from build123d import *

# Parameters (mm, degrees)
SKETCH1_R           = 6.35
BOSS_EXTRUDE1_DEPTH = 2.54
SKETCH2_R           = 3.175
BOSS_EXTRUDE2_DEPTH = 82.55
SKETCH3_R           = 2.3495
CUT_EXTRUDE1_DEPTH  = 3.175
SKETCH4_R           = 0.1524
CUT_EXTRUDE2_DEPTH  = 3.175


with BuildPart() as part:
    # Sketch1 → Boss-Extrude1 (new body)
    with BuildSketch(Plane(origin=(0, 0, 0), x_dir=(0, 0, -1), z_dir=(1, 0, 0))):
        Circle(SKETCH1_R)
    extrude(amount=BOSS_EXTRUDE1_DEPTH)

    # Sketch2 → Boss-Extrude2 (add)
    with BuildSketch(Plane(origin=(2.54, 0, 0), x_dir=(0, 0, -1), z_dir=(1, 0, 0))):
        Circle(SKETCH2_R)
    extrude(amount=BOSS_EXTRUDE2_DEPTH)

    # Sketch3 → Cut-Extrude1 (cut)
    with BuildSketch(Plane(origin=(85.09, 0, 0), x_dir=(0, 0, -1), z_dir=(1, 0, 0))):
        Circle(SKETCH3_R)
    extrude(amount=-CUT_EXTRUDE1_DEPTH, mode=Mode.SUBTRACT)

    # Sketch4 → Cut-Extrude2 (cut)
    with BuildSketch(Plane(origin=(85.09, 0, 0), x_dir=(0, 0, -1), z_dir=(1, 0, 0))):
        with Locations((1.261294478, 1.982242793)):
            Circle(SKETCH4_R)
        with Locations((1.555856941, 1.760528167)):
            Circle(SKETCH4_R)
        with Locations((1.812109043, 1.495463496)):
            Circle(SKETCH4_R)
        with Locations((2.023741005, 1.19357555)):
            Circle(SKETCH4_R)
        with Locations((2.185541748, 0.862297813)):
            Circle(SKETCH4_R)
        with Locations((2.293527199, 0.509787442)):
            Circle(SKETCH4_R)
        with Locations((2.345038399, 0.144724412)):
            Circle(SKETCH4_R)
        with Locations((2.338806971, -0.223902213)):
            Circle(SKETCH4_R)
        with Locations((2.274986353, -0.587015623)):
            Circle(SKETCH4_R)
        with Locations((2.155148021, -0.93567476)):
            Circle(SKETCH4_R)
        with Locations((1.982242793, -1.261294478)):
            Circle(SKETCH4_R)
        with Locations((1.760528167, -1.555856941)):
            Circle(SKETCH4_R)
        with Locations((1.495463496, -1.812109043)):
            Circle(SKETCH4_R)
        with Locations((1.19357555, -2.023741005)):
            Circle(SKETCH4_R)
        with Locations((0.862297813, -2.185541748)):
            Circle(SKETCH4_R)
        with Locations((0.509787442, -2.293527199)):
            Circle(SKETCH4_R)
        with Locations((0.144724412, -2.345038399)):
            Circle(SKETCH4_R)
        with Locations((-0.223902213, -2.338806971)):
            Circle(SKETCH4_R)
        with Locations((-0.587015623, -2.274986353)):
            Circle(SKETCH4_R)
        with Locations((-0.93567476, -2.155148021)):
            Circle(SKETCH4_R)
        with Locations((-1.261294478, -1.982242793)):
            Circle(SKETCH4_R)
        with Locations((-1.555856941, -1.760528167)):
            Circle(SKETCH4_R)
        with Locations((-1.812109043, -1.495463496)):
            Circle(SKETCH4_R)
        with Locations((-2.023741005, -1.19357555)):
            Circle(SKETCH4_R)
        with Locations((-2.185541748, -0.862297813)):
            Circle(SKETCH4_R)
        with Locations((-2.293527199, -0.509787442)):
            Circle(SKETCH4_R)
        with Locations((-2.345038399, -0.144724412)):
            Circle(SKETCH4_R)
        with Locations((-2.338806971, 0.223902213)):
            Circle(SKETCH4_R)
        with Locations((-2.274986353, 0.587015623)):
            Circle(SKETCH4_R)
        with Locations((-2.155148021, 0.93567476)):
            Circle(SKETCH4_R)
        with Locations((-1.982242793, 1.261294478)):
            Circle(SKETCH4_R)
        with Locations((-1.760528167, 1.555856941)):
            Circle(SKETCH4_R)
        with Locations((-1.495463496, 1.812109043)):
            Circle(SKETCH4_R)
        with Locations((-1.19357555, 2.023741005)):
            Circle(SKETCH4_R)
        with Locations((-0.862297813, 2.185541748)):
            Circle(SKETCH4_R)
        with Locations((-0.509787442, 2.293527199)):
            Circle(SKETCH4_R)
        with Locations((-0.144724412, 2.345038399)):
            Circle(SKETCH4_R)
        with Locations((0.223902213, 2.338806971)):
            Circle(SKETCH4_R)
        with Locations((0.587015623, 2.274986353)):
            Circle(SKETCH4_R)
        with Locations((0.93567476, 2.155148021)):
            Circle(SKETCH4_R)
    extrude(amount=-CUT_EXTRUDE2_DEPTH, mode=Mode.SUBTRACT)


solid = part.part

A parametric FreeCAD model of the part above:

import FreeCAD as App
import Part
import Sketcher
Q = App.Units.Quantity

doc = App.newDocument("Part")
body = doc.addObject("PartDesign::Body", "Body")

# Sketch on YZ plane
sketch1 = doc.addObject("Sketcher::SketchObject", "Sketch")
body.addObject(sketch1)
sketch1.AttachmentSupport = (doc.YZ_Plane, [""])
sketch1.MapMode = "FlatFace"
sketch1.addGeometry(Part.Circle(App.Vector(0, 0, 0), App.Vector(0, 0, 1), 6), False)
sketch1.addConstraint([
    Sketcher.Constraint("Coincident", 0, 3, -1, 1),
    Sketcher.Constraint("Diameter", 0, Q("0.5 in")),
])
pad1 = doc.addObject("PartDesign::Pad", "Pad")
body.addObject(pad1)
pad1.Profile = sketch1
pad1.Length = Q("0.1 in")

# Sketch on YZ plane
sketch2 = doc.addObject("Sketcher::SketchObject", "Sketch001")
body.addObject(sketch2)
sketch2.AttachmentSupport = (doc.YZ_Plane, [""])
sketch2.MapMode = "FlatFace"
sketch2.AttachmentOffset = App.Placement(App.Vector(0, 0, 0.1 * 25.4), App.Rotation())
sketch2.addGeometry(Part.Circle(App.Vector(0, 0, 0), App.Vector(0, 0, 1), 3.2), False)
sketch2.addConstraint([
    Sketcher.Constraint("Coincident", 0, 3, -1, 1),
    Sketcher.Constraint("Diameter", 0, Q("0.25 in")),
])
pad2 = doc.addObject("PartDesign::Pad", "Pad001")
body.addObject(pad2)
pad2.Profile = sketch2
pad2.Length = Q("3.25 in")

# Sketch on YZ plane
sketch3 = doc.addObject("Sketcher::SketchObject", "Sketch002")
body.addObject(sketch3)
sketch3.AttachmentSupport = (doc.YZ_Plane, [""])
sketch3.MapMode = "FlatFace"
sketch3.AttachmentOffset = App.Placement(App.Vector(0, 0, 3.35 * 25.4), App.Rotation())
sketch3.addGeometry(Part.Circle(App.Vector(0, 0, 0), App.Vector(0, 0, 1), 2.3), False)
sketch3.addConstraint([
    Sketcher.Constraint("Coincident", 0, 3, -1, 1),
    Sketcher.Constraint("Diameter", 0, Q("0.185 in")),
])
pocket1 = doc.addObject("PartDesign::Pocket", "Pocket")
body.addObject(pocket1)
pocket1.Profile = sketch3
pocket1.Length = Q("0.125 in")

# Sketch on YZ plane
sketch4 = doc.addObject("Sketcher::SketchObject", "Sketch003")
body.addObject(sketch4)
sketch4.AttachmentSupport = (doc.YZ_Plane, [""])
sketch4.MapMode = "FlatFace"
sketch4.AttachmentOffset = App.Placement(App.Vector(0, 0, 3.35 * 25.4), App.Rotation())
sketch4.addGeometry([
    Part.Circle(App.Vector(1.98, -1.26, 0), App.Vector(0, 0, 1), 0.15),  # 0
    Part.Circle(App.Vector(1.76, -1.56, 0), App.Vector(0, 0, 1), 0.15),  # 1
    Part.Circle(App.Vector(1.5, -1.81, 0), App.Vector(0, 0, 1), 0.15),  # 2
    Part.Circle(App.Vector(1.19, -2.02, 0), App.Vector(0, 0, 1), 0.15),  # 3
    Part.Circle(App.Vector(0.86, -2.19, 0), App.Vector(0, 0, 1), 0.15),  # 4
    Part.Circle(App.Vector(0.51, -2.29, 0), App.Vector(0, 0, 1), 0.15),  # 5
    Part.Circle(App.Vector(0.14, -2.35, 0), App.Vector(0, 0, 1), 0.15),  # 6
    Part.Circle(App.Vector(-0.22, -2.34, 0), App.Vector(0, 0, 1), 0.15),  # 7
    Part.Circle(App.Vector(-0.59, -2.27, 0), App.Vector(0, 0, 1), 0.15),  # 8
    Part.Circle(App.Vector(-0.94, -2.16, 0), App.Vector(0, 0, 1), 0.15),  # 9
    Part.Circle(App.Vector(-1.26, -1.98, 0), App.Vector(0, 0, 1), 0.15),  # 10
    Part.Circle(App.Vector(-1.56, -1.76, 0), App.Vector(0, 0, 1), 0.15),  # 11
    Part.Circle(App.Vector(-1.81, -1.5, 0), App.Vector(0, 0, 1), 0.15),  # 12
    Part.Circle(App.Vector(-2.02, -1.19, 0), App.Vector(0, 0, 1), 0.15),  # 13
    Part.Circle(App.Vector(-2.19, -0.86, 0), App.Vector(0, 0, 1), 0.15),  # 14
    Part.Circle(App.Vector(-2.29, -0.51, 0), App.Vector(0, 0, 1), 0.15),  # 15
    Part.Circle(App.Vector(-2.35, -0.14, 0), App.Vector(0, 0, 1), 0.15),  # 16
    Part.Circle(App.Vector(-2.34, 0.22, 0), App.Vector(0, 0, 1), 0.15),  # 17
    Part.Circle(App.Vector(-2.27, 0.59, 0), App.Vector(0, 0, 1), 0.15),  # 18
    Part.Circle(App.Vector(-2.16, 0.94, 0), App.Vector(0, 0, 1), 0.15),  # 19
    Part.Circle(App.Vector(-1.98, 1.26, 0), App.Vector(0, 0, 1), 0.15),  # 20
    Part.Circle(App.Vector(-1.76, 1.56, 0), App.Vector(0, 0, 1), 0.15),  # 21
    Part.Circle(App.Vector(-1.5, 1.81, 0), App.Vector(0, 0, 1), 0.15),  # 22
    Part.Circle(App.Vector(-1.19, 2.02, 0), App.Vector(0, 0, 1), 0.15),  # 23
    Part.Circle(App.Vector(-0.86, 2.19, 0), App.Vector(0, 0, 1), 0.15),  # 24
    Part.Circle(App.Vector(-0.51, 2.29, 0), App.Vector(0, 0, 1), 0.15),  # 25
    Part.Circle(App.Vector(-0.14, 2.35, 0), App.Vector(0, 0, 1), 0.15),  # 26
    Part.Circle(App.Vector(0.22, 2.34, 0), App.Vector(0, 0, 1), 0.15),  # 27
    Part.Circle(App.Vector(0.59, 2.27, 0), App.Vector(0, 0, 1), 0.15),  # 28
    Part.Circle(App.Vector(0.94, 2.16, 0), App.Vector(0, 0, 1), 0.15),  # 29
    Part.Circle(App.Vector(1.26, 1.98, 0), App.Vector(0, 0, 1), 0.15),  # 30
    Part.Circle(App.Vector(1.56, 1.76, 0), App.Vector(0, 0, 1), 0.15),  # 31
    Part.Circle(App.Vector(1.81, 1.5, 0), App.Vector(0, 0, 1), 0.15),  # 32
    Part.Circle(App.Vector(2.02, 1.19, 0), App.Vector(0, 0, 1), 0.15),  # 33
    Part.Circle(App.Vector(2.19, 0.86, 0), App.Vector(0, 0, 1), 0.15),  # 34
    Part.Circle(App.Vector(2.29, 0.51, 0), App.Vector(0, 0, 1), 0.15),  # 35
    Part.Circle(App.Vector(2.35, 0.14, 0), App.Vector(0, 0, 1), 0.15),  # 36
    Part.Circle(App.Vector(2.34, -0.22, 0), App.Vector(0, 0, 1), 0.15),  # 37
    Part.Circle(App.Vector(2.27, -0.59, 0), App.Vector(0, 0, 1), 0.15),  # 38
    Part.Circle(App.Vector(2.16, -0.94, 0), App.Vector(0, 0, 1), 0.15),  # 39
], False)
sketch4.addConstraint([
    Sketcher.Constraint("Equal", 0, 1),
    Sketcher.Constraint("Equal", 1, 2),
    Sketcher.Constraint("Equal", 2, 3),
    Sketcher.Constraint("Equal", 3, 4),
    Sketcher.Constraint("Equal", 4, 5),
    Sketcher.Constraint("Equal", 5, 6),
    Sketcher.Constraint("Equal", 6, 7),
    Sketcher.Constraint("Equal", 7, 8),
    Sketcher.Constraint("Equal", 8, 9),
    Sketcher.Constraint("Equal", 9, 10),
    Sketcher.Constraint("Equal", 10, 11),
    Sketcher.Constraint("Equal", 11, 12),
    Sketcher.Constraint("Equal", 12, 13),
    Sketcher.Constraint("Equal", 13, 14),
    Sketcher.Constraint("Equal", 14, 15),
    Sketcher.Constraint("Equal", 15, 16),
    Sketcher.Constraint("Equal", 16, 17),
    Sketcher.Constraint("Equal", 17, 18),
    Sketcher.Constraint("Equal", 18, 19),
    Sketcher.Constraint("Equal", 19, 20),
    Sketcher.Constraint("Equal", 20, 21),
    Sketcher.Constraint("Equal", 21, 22),
    Sketcher.Constraint("Equal", 22, 23),
    Sketcher.Constraint("Equal", 23, 24),
    Sketcher.Constraint("Equal", 24, 25),
    Sketcher.Constraint("Equal", 25, 26),
    Sketcher.Constraint("Equal", 26, 27),
    Sketcher.Constraint("Equal", 27, 28),
    Sketcher.Constraint("Equal", 28, 29),
    Sketcher.Constraint("Equal", 29, 30),
    Sketcher.Constraint("Equal", 30, 31),
    Sketcher.Constraint("Equal", 31, 32),
    Sketcher.Constraint("Equal", 32, 33),
    Sketcher.Constraint("Equal", 33, 34),
    Sketcher.Constraint("Equal", 34, 35),
    Sketcher.Constraint("Equal", 35, 36),
    Sketcher.Constraint("Equal", 36, 37),
    Sketcher.Constraint("Equal", 37, 38),
    Sketcher.Constraint("Equal", 38, 39),
    Sketcher.Constraint("Symmetric", 0, 3, 20, 3, -1, 1),
    Sketcher.Constraint("Symmetric", 1, 3, 21, 3, -1, 1),
    Sketcher.Constraint("Symmetric", 2, 3, 22, 3, -1, 1),
    Sketcher.Constraint("Symmetric", 3, 3, 23, 3, -1, 1),
    Sketcher.Constraint("Symmetric", 4, 3, 24, 3, -1, 1),
    Sketcher.Constraint("Symmetric", 5, 3, 25, 3, -1, 1),
    Sketcher.Constraint("Symmetric", 6, 3, 26, 3, -1, 1),
    Sketcher.Constraint("Symmetric", 7, 3, 27, 3, -1, 1),
    Sketcher.Constraint("Symmetric", 8, 3, 28, 3, -1, 1),
    Sketcher.Constraint("Symmetric", 9, 3, 29, 3, -1, 1),
    Sketcher.Constraint("Symmetric", 10, 3, 30, 3, -1, 1),
    Sketcher.Constraint("Symmetric", 11, 3, 31, 3, -1, 1),
    Sketcher.Constraint("Symmetric", 12, 3, 32, 3, -1, 1),
    Sketcher.Constraint("Symmetric", 13, 3, 33, 3, -1, 1),
    Sketcher.Constraint("Symmetric", 14, 3, 34, 3, -1, 1),
    Sketcher.Constraint("Symmetric", 15, 3, 35, 3, -1, 1),
    Sketcher.Constraint("Symmetric", 16, 3, 36, 3, -1, 1),
    Sketcher.Constraint("Symmetric", 17, 3, 37, 3, -1, 1),
    Sketcher.Constraint("Symmetric", 18, 3, 38, 3, -1, 1),
    Sketcher.Constraint("Symmetric", 19, 3, 39, 3, -1, 1),
    Sketcher.Constraint("Diameter", 0, Q("0.012 in")),
    Sketcher.Constraint("DistanceY", 4, 3, 3, 3, Q("0.161801 mm")),
    Sketcher.Constraint("DistanceX", 7, 3, 4, 3, Q("1.0862 mm")),
    Sketcher.Constraint("DistanceX", 9, 3, 6, 3, Q("1.080399 mm")),
    Sketcher.Constraint("DistanceX", 14, 3, 13, 3, Q("0.161801 mm")),
    Sketcher.Constraint("DistanceY", 14, 3, 17, 3, Q("1.0862 mm")),
    Sketcher.Constraint("DistanceY", 16, 3, 19, 3, Q("1.080399 mm")),
    Sketcher.Constraint("DistanceX", -1, 1, 1, 3, Q("1.760528 mm")),
    Sketcher.Constraint("DistanceY", 2, 3, -1, 1, Q("1.812109 mm")),
    Sketcher.Constraint("DistanceY", 3, 3, -1, 1, Q("2.023741 mm")),
    Sketcher.Constraint("DistanceY", 6, 3, -1, 1, Q("2.345038 mm")),
    Sketcher.Constraint("DistanceY", 9, 3, -1, 1, Q("2.155148 mm")),
    Sketcher.Constraint("DistanceY", 11, 3, -1, 1, Q("1.760528 mm")),
    Sketcher.Constraint("DistanceX", 12, 3, -1, 1, Q("1.812109 mm")),
    Sketcher.Constraint("DistanceX", 13, 3, -1, 1, Q("2.023741 mm")),
    Sketcher.Constraint("DistanceX", 16, 3, -1, 1, Q("2.345038 mm")),
    Sketcher.Constraint("DistanceX", 19, 3, -1, 1, Q("2.155148 mm")),
    Sketcher.Constraint("DistanceX", 2, 3, 0, 3, Q("0.486779 mm")),
    Sketcher.Constraint("DistanceX", 4, 3, 1, 3, Q("0.89823 mm")),
    Sketcher.Constraint("DistanceX", 5, 3, 4, 3, Q("0.35251 mm")),
    Sketcher.Constraint("DistanceX", 5, 3, 3, 3, Q("0.683788 mm")),
    Sketcher.Constraint("DistanceY", 5, 3, 2, 3, Q("0.481418 mm")),
    Sketcher.Constraint("DistanceY", 5, 3, 1, 3, Q("0.73767 mm")),
    Sketcher.Constraint("DistanceX", 6, 3, 3, 3, Q("1.048851 mm")),
    Sketcher.Constraint("DistanceX", 6, 3, 2, 3, Q("1.350739 mm")),
    Sketcher.Constraint("DistanceY", 6, 3, 7, 3, Q("0.006231 mm")),
    Sketcher.Constraint("DistanceY", 7, 3, 8, 3, Q("0.063821 mm")),
    Sketcher.Constraint("DistanceX", 8, 3, 6, 3, Q("0.73174 mm")),
    Sketcher.Constraint("DistanceX", 10, 3, 9, 3, Q("0.32562 mm")),
    Sketcher.Constraint("DistanceX", 11, 3, 8, 3, Q("0.968841 mm")),
    Sketcher.Constraint("DistanceY", 10, 3, 12, 3, Q("0.486779 mm")),
    Sketcher.Constraint("DistanceY", 8, 3, 13, 3, Q("1.081411 mm")),
    Sketcher.Constraint("DistanceY", 11, 3, 14, 3, Q("0.89823 mm")),
    Sketcher.Constraint("DistanceY", 14, 3, 15, 3, Q("0.35251 mm")),
    Sketcher.Constraint("DistanceX", 15, 3, 12, 3, Q("0.481418 mm")),
    Sketcher.Constraint("DistanceY", 13, 3, 16, 3, Q("1.048851 mm")),
    Sketcher.Constraint("DistanceY", 12, 3, 16, 3, Q("1.350739 mm")),
    Sketcher.Constraint("DistanceX", 16, 3, 17, 3, Q("0.006231 mm")),
    Sketcher.Constraint("DistanceX", 17, 3, 18, 3, Q("0.063821 mm")),
    Sketcher.Constraint("DistanceY", 16, 3, 18, 3, Q("0.73174 mm")),
    Sketcher.Constraint("DistanceY", 19, 3, 20, 3, Q("0.32562 mm")),
])
pocket2 = doc.addObject("PartDesign::Pocket", "Pocket001")
body.addObject(pocket2)
pocket2.Profile = sketch4
pocket2.Length = Q("0.125 in")

doc.recompute()
